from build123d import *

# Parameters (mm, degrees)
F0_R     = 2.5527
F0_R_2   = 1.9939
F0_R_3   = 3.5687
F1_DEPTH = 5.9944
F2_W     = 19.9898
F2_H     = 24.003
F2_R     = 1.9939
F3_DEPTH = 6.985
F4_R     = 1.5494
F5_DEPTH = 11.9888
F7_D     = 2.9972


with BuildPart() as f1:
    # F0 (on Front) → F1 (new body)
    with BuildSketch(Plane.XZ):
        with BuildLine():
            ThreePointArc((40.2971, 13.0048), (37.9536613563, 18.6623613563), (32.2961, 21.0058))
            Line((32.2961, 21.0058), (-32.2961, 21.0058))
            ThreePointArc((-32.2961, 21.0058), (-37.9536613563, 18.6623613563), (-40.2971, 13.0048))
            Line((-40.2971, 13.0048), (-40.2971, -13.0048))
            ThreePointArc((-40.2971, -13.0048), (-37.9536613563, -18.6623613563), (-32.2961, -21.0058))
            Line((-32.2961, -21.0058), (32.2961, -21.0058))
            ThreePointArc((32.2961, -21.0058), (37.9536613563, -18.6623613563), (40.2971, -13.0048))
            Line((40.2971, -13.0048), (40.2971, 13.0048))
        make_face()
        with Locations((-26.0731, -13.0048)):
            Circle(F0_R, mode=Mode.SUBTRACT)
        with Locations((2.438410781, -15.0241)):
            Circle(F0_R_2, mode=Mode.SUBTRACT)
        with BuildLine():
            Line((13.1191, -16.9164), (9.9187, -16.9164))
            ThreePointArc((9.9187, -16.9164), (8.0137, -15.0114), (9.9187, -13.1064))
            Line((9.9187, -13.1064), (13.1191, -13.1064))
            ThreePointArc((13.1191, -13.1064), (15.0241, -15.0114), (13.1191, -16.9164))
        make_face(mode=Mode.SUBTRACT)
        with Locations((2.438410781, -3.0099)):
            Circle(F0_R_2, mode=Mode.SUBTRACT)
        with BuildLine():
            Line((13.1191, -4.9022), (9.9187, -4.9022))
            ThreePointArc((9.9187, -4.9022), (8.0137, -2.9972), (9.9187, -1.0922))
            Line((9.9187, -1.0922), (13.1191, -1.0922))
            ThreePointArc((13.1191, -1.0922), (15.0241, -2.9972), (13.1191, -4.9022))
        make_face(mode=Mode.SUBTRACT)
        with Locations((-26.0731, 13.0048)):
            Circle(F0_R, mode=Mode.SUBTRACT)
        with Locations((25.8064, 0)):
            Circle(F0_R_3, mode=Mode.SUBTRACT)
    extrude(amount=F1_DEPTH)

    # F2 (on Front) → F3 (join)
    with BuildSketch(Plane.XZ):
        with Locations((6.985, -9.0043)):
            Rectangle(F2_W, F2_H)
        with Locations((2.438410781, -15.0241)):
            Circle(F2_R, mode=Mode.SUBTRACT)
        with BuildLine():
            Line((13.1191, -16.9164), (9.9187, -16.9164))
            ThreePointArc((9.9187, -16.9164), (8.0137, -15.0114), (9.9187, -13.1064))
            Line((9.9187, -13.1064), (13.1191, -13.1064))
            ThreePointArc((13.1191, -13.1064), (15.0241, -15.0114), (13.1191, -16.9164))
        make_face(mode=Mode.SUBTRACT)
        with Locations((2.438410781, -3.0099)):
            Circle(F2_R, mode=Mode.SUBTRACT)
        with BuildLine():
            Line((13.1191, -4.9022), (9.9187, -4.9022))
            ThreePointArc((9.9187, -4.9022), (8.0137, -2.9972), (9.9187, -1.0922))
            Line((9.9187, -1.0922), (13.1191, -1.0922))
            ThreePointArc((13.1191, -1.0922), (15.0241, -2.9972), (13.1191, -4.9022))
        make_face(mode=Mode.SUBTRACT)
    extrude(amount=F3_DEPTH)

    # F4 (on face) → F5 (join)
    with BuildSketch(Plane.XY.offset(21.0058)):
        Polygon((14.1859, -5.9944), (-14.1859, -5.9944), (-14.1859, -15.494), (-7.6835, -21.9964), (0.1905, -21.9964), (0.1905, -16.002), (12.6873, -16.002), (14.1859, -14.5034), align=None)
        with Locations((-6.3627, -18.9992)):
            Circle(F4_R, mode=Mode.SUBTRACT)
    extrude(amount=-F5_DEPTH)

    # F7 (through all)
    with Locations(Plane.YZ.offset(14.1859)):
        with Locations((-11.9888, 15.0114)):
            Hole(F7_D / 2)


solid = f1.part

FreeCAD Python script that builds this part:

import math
import FreeCAD as App
import Part
import Sketcher

V = App.Vector
Q = App.Units.Quantity


def add_polygon(sketch, points):
    """Adds a closed chain of lines whose ends are joined by coincident constraints."""
    first, n = sketch.GeometryCount, len(points)
    for a, b in zip(points, points[1:] + points[:1]):
        sketch.addGeometry(Part.LineSegment(App.Vector(*a, 0), App.Vector(*b, 0)), False)
    for i in range(n):
        sketch.addConstraint(Sketcher.Constraint("Coincident", first + i, 2, first + (i + 1) % n, 1))

doc = App.newDocument("Part")
body = doc.addObject("PartDesign::Body", "Body")

# Sketch on XZ plane
sketch1 = body.newObject("Sketcher::SketchObject", "Sketch")
sketch1.AttachmentSupport = (doc.getObject("XZ_Plane"), [""])
sketch1.MapMode = "FlatFace"
sketch1.addGeometry([
    Part.ArcOfCircle(Part.Circle(V(32.2961, 13.0048, 0), V(0, 0, 1), 8.001), math.radians(0), math.radians(90)),  # 0
    Part.LineSegment(V(32.2961, 21.0058, 0), V(-32.2961, 21.0058, 0)),  # 1
    Part.ArcOfCircle(Part.Circle(V(-32.2961, 13.0048, 0), V(0, 0, 1), 8.001), math.radians(90), math.radians(180)),  # 2
    Part.LineSegment(V(-40.2971, 13.0048, 0), V(-40.2971, -13.0048, 0)),  # 3
    Part.ArcOfCircle(Part.Circle(V(-32.2961, -13.0048, 0), V(0, 0, 1), 8.001), math.radians(180), math.radians(270)),  # 4
    Part.LineSegment(V(-32.2961, -21.0058, 0), V(32.2961, -21.0058, 0)),  # 5
    Part.ArcOfCircle(Part.Circle(V(32.2961, -13.0048, 0), V(0, 0, 1), 8.001), math.radians(-90), math.radians(0)),  # 6
    Part.LineSegment(V(40.2971, -13.0048, 0), V(40.2971, 13.0048, 0)),  # 7
    Part.Circle(V(-26.0731, -13.0048, 0), V(0, 0, 1), 2.5527),  # 8
    Part.Circle(V(2.438411, -15.0241, 0), V(0, 0, 1), 1.9939),  # 9
    Part.ArcOfCircle(Part.Circle(V(13.1191, -15.0114, 0), V(0, 0, 1), 1.905), math.radians(-90), math.radians(90)),  # 10
    Part.LineSegment(V(13.1191, -16.9164, 0), V(9.9187, -16.9164, 0)),  # 11
    Part.ArcOfCircle(Part.Circle(V(9.9187, -15.0114, 0), V(0, 0, 1), 1.905), math.radians(90), math.radians(270)),  # 12
    Part.LineSegment(V(9.9187, -13.1064, 0), V(13.1191, -13.1064, 0)),  # 13
    Part.Circle(V(2.438411, -3.0099, 0), V(0, 0, 1), 1.9939),  # 14
    Part.ArcOfCircle(Part.Circle(V(13.1191, -2.9972, 0), V(0, 0, 1), 1.905), math.radians(-90), math.radians(90)),  # 15
    Part.LineSegment(V(13.1191, -4.9022, 0), V(9.9187, -4.9022, 0)),  # 16
    Part.ArcOfCircle(Part.Circle(V(9.9187, -2.9972, 0), V(0, 0, 1), 1.905), math.radians(90), math.radians(270)),  # 17
    Part.LineSegment(V(9.9187, -1.0922, 0), V(13.1191, -1.0922, 0)),  # 18
    Part.Circle(V(-26.0731, 13.0048, 0), V(0, 0, 1), 2.5527),  # 19
    Part.Circle(V(25.8064, 0, 0), V(0, 0, 1), 3.5687),  # 20
], False)
sketch1.addConstraint([
    Sketcher.Constraint("Tangent", 0, 2, 1, 1),
    Sketcher.Constraint("Tangent", 1, 2, 2, 1),
    Sketcher.Constraint("Tangent", 2, 2, 3, 1),
    Sketcher.Constraint("Tangent", 3, 2, 4, 1),
    Sketcher.Constraint("Tangent", 4, 2, 5, 1),
    Sketcher.Constraint("Tangent", 5, 2, 6, 1),
    Sketcher.Constraint("Tangent", 6, 2, 7, 1),
    Sketcher.Constraint("Tangent", 7, 2, 0, 1),
    Sketcher.Constraint("Tangent", 10, 1, 11, 1),
    Sketcher.Constraint("Tangent", 11, 2, 12, 2),
    Sketcher.Constraint("Tangent", 12, 1, 13, 1),
    Sketcher.Constraint("Tangent", 13, 2, 10, 2),
    Sketcher.Constraint("Tangent", 15, 1, 16, 1),
    Sketcher.Constraint("Tangent", 16, 2, 17, 2),
    Sketcher.Constraint("Tangent", 17, 1, 18, 1),
    Sketcher.Constraint("Tangent", 18, 2, 15, 2),
    Sketcher.Constraint("Horizontal", 1),
    Sketcher.Constraint("Vertical", 3),
    Sketcher.Constraint("Horizontal", 5),
    Sketcher.Constraint("Vertical", 7),
    Sketcher.Constraint("Horizontal", 11),
    Sketcher.Constraint("Horizontal", 13),
    Sketcher.Constraint("Horizontal", 16),
    Sketcher.Constraint("Horizontal", 18),
    Sketcher.Constraint("Equal", 0, 2),
    Sketcher.Constraint("Equal", 2, 4),
    Sketcher.Constraint("Equal", 4, 6),
    Sketcher.Constraint("Equal", 9, 14),
    Sketcher.Constraint("Equal", 12, 15),
    Sketcher.Constraint("Equal", 8, 19),
    Sketcher.Constraint("Symmetric", 0, 3, 4, 3, -1, 1),
    Sketcher.Constraint("Symmetric", 8, 3, 19, 3, -1),
    Sketcher.Constraint("PointOnObject", 20, 3, -1),
    Sketcher.Constraint("Horizontal", 6, 3, 8, 3),
    Sketcher.Constraint("Vertical", 9, 3, 14, 3),
    Sketcher.Constraint("Vertical", 10, 3, 15, 3),
    Sketcher.Constraint("Vertical", 12, 3, 17, 3),
    Sketcher.Constraint("Diameter", 8, Q("0.201 in")),
    Sketcher.Constraint("Diameter", 9, Q("0.157 in")),
    Sketcher.Constraint("Diameter", 20, Q("0.281 in")),
    Sketcher.Constraint("Radius", 0, Q("0.315 in")),
    Sketcher.Constraint("Radius", 10, Q("0.075 in")),
    Sketcher.Constraint("DistanceX", 1, 2, 1, 1, Q("2.543 in")),
    Sketcher.Constraint("DistanceX", 11, 2, 11, 1, Q("0.126 in")),
    Sketcher.Constraint("DistanceY", 3, 2, 3, 1, Q("1.024 in")),
    Sketcher.Constraint("DistanceY", 17, 3, 19, 3, Q("0.63 in")),
    Sketcher.Constraint("DistanceX", 2, 2, 19, 3, Q("0.56 in")),
    Sketcher.Constraint("DistanceX", 10, 3, 6, 2, Q("1.07 in")),
    Sketcher.Constraint("DistanceY", 10, 3, -1, 1, Q("0.591 in")),
    Sketcher.Constraint("DistanceX", -1, 1, 20, 3, Q("1.016 in")),
    Sketcher.Constraint("DistanceY", 9, 3, 14, 3, Q("0.473 in")),
    Sketcher.Constraint("DistanceY", 9, 3, -1, 1, Q("0.5915 in")),
    Sketcher.Constraint("DistanceX", -1, 1, 9, 3, 2.438411),
])
pad1 = body.newObject("PartDesign::Pad", "Pad")
pad1.Profile = sketch1
pad1.Length = Q("0.236 in")

# Sketch on XZ plane
sketch2 = body.newObject("Sketcher::SketchObject", "Sketch001")
sketch2.AttachmentSupport = (doc.getObject("XZ_Plane"), [""])
sketch2.MapMode = "FlatFace"
add_polygon(sketch2, [(-3.0099, 2.9972), (-3.0099, -21.0058), (16.9799, -21.0058), (16.9799, 2.9972)])  # lines 0-3
sketch2.addGeometry(Part.Circle(V(2.438411, -15.0241, 0), V(0, 0, 1), 1.9939), False)  # 4
sketch2.addGeometry(Part.ArcOfCircle(Part.Circle(V(13.1191, -15.0114, 0), V(0, 0, 1), 1.905), math.radians(-90), math.radians(90)), False)  # 5
sketch2.addGeometry(Part.LineSegment(V(13.1191, -16.9164, 0), V(9.9187, -16.9164, 0)), False)  # 6
sketch2.addGeometry(Part.ArcOfCircle(Part.Circle(V(9.9187, -15.0114, 0), V(0, 0, 1), 1.905), math.radians(90), math.radians(270)), False)  # 7
sketch2.addGeometry(Part.LineSegment(V(9.9187, -13.1064, 0), V(13.1191, -13.1064, 0)), False)  # 8
sketch2.addGeometry(Part.Circle(V(2.438411, -3.0099, 0), V(0, 0, 1), 1.9939), False)  # 9
sketch2.addGeometry(Part.ArcOfCircle(Part.Circle(V(13.1191, -2.9972, 0), V(0, 0, 1), 1.905), math.radians(-90), math.radians(90)), False)  # 10
sketch2.addGeometry(Part.LineSegment(V(13.1191, -4.9022, 0), V(9.9187, -4.9022, 0)), False)  # 11
sketch2.addGeometry(Part.ArcOfCircle(Part.Circle(V(9.9187, -2.9972, 0), V(0, 0, 1), 1.905), math.radians(90), math.radians(270)), False)  # 12
sketch2.addGeometry(Part.LineSegment(V(9.9187, -1.0922, 0), V(13.1191, -1.0922, 0)), False)  # 13
sketch2.addConstraint([
    Sketcher.Constraint("Tangent", 5, 1, 6, 1),
    Sketcher.Constraint("Tangent", 6, 2, 7, 2),
    Sketcher.Constraint("Tangent", 7, 1, 8, 1),
    Sketcher.Constraint("Tangent", 8, 2, 5, 2),
    Sketcher.Constraint("Tangent", 10, 1, 11, 1),
    Sketcher.Constraint("Tangent", 11, 2, 12, 2),
    Sketcher.Constraint("Tangent", 12, 1, 13, 1),
    Sketcher.Constraint("Tangent", 13, 2, 10, 2),
    Sketcher.Constraint("Vertical", 0),
    Sketcher.Constraint("Horizontal", 1),
    Sketcher.Constraint("Vertical", 2),
    Sketcher.Constraint("Horizontal", 3),
    Sketcher.Constraint("Horizontal", 6),
    Sketcher.Constraint("Horizontal", 8),
    Sketcher.Constraint("Horizontal", 11),
    Sketcher.Constraint("Horizontal", 13),
    Sketcher.Constraint("Equal", 4, 9),
    Sketcher.Constraint("Equal", 7, 10),
    Sketcher.Constraint("Vertical", 4, 3, 9, 3),
    Sketcher.Constraint("Vertical", 5, 3, 10, 3),
    Sketcher.Constraint("Vertical", 7, 3, 12, 3),
    Sketcher.Constraint("Diameter", 4, Q("0.157 in")),
    Sketcher.Constraint("Radius", 5, Q("0.075 in")),
    Sketcher.Constraint("DistanceX", 1, 1, 1, 2, Q("0.787 in")),
    Sketcher.Constraint("DistanceX", 6, 2, 6, 1, Q("0.126 in")),
    Sketcher.Constraint("DistanceY", 0, 2, 0, 1, Q("0.945 in")),
    Sketcher.Constraint("DistanceY", 5, 3, -1, 1, Q("0.591 in")),
    Sketcher.Constraint("DistanceY", 10, 3, -1, 1, Q("0.118 in")),
    Sketcher.Constraint("DistanceY", 0, 2, -1, 1, Q("0.827 in")),
    Sketcher.Constraint("DistanceY", 4, 3, 9, 3, Q("0.473 in")),
    Sketcher.Constraint("DistanceX", 0, 2, 7, 3, Q("0.509 in")),
    Sketcher.Constraint("DistanceY", 4, 3, -1, 1, Q("0.5915 in")),
    Sketcher.Constraint("DistanceX", -1, 1, 5, 3, Q("0.5165 in")),
    Sketcher.Constraint("DistanceX", -1, 1, 4, 3, 2.438411),
])
pad2 = body.newObject("PartDesign::Pad", "Pad001")
pad2.Profile = sketch2
pad2.Length = Q("0.275 in")

# Sketch on XY plane
sketch3 = body.newObject("Sketcher::SketchObject", "Sketch002")
sketch3.AttachmentSupport = (doc.getObject("XY_Plane"), [""])
sketch3.MapMode = "FlatFace"
sketch3.AttachmentOffset = App.Placement(V(0, 0, 0.827 * 25.4), App.Rotation())
add_polygon(sketch3, [(14.1859, -5.9944), (-14.1859, -5.9944), (-14.1859, -15.494), (-7.6835, -21.9964), (0.1905, -21.9964), (0.1905, -16.002), (12.6873, -16.002), (14.1859, -14.5034)])  # lines 0-7
sketch3.addGeometry(Part.Circle(V(-6.3627, -18.9992, 0), V(0, 0, 1), 1.5494), False)  # 8
sketch3.addConstraint([
    Sketcher.Constraint("Horizontal", 0),
    Sketcher.Constraint("Vertical", 1),
    Sketcher.Constraint("Horizontal", 3),
    Sketcher.Constraint("Vertical", 4),
    Sketcher.Constraint("Horizontal", 5),
    Sketcher.Constraint("Vertical", 7),
    Sketcher.Constraint("Perpendicular", 2, 6),
    Sketcher.Constraint("Diameter", 8, Q("0.122 in")),
    Sketcher.Constraint("Angle", 2, Q("-45 deg")),
    Sketcher.Constraint("DistanceX", 3, 1, 3, 2, Q("0.31 in")),
    Sketcher.Constraint("DistanceX", 0, 2, 0, 1, Q("1.117 in")),
    Sketcher.Constraint("DistanceX", 5, 1, 5, 2, Q("0.492 in")),
    Sketcher.Constraint("DistanceY", 1, 2, 1, 1, Q("0.374 in")),
    Sketcher.Constraint("DistanceY", 4, 1, 4, 2, Q("0.236 in")),
    Sketcher.Constraint("DistanceY", 7, 1, 7, 2, Q("0.335 in")),
    Sketcher.Constraint("DistanceY", 1, 2, -1, 1, Q("0.61 in")),
    Sketcher.Constraint("DistanceX", 8, 3, 5, 2, Q("0.75 in")),
    Sketcher.Constraint("DistanceY", 8, 3, -1, 1, Q("0.748 in")),
    Sketcher.Constraint("DistanceX", 8, 3, -1, 1, Q("0.2505 in")),
])
pad3 = body.newObject("PartDesign::Pad", "Pad002")
pad3.Profile = sketch3
pad3.Length = Q("0.472 in")
pad3.Reversed = True

# Sketch on YZ plane
sketch4 = body.newObject("Sketcher::SketchObject", "Sketch003")
sketch4.AttachmentSupport = (doc.getObject("YZ_Plane"), [""])
sketch4.MapMode = "FlatFace"
sketch4.AttachmentOffset = App.Placement(V(0, 0, 0.5585 * 25.4), App.Rotation())
sketch4.addGeometry(Part.Circle(V(-11.9888, 15.0114, 0), V(0, 0, 1), 1.4986), False)
sketch4.addConstraint([
    Sketcher.Constraint("Diameter", 0, Q("0.118 in")),
    Sketcher.Constraint("DistanceX", 0, 3, -1, 1, Q("0.472 in")),
    Sketcher.Constraint("DistanceY", -1, 1, 0, 3, Q("0.591 in")),
])
doc.recompute()
hole = body.newObject("PartDesign::Hole", "Hole")
hole.Profile = sketch4
hole.ThreadType = "None"
hole.Diameter = Q("0.118 in")
hole.DepthType = "ThroughAll"

doc.recompute()
